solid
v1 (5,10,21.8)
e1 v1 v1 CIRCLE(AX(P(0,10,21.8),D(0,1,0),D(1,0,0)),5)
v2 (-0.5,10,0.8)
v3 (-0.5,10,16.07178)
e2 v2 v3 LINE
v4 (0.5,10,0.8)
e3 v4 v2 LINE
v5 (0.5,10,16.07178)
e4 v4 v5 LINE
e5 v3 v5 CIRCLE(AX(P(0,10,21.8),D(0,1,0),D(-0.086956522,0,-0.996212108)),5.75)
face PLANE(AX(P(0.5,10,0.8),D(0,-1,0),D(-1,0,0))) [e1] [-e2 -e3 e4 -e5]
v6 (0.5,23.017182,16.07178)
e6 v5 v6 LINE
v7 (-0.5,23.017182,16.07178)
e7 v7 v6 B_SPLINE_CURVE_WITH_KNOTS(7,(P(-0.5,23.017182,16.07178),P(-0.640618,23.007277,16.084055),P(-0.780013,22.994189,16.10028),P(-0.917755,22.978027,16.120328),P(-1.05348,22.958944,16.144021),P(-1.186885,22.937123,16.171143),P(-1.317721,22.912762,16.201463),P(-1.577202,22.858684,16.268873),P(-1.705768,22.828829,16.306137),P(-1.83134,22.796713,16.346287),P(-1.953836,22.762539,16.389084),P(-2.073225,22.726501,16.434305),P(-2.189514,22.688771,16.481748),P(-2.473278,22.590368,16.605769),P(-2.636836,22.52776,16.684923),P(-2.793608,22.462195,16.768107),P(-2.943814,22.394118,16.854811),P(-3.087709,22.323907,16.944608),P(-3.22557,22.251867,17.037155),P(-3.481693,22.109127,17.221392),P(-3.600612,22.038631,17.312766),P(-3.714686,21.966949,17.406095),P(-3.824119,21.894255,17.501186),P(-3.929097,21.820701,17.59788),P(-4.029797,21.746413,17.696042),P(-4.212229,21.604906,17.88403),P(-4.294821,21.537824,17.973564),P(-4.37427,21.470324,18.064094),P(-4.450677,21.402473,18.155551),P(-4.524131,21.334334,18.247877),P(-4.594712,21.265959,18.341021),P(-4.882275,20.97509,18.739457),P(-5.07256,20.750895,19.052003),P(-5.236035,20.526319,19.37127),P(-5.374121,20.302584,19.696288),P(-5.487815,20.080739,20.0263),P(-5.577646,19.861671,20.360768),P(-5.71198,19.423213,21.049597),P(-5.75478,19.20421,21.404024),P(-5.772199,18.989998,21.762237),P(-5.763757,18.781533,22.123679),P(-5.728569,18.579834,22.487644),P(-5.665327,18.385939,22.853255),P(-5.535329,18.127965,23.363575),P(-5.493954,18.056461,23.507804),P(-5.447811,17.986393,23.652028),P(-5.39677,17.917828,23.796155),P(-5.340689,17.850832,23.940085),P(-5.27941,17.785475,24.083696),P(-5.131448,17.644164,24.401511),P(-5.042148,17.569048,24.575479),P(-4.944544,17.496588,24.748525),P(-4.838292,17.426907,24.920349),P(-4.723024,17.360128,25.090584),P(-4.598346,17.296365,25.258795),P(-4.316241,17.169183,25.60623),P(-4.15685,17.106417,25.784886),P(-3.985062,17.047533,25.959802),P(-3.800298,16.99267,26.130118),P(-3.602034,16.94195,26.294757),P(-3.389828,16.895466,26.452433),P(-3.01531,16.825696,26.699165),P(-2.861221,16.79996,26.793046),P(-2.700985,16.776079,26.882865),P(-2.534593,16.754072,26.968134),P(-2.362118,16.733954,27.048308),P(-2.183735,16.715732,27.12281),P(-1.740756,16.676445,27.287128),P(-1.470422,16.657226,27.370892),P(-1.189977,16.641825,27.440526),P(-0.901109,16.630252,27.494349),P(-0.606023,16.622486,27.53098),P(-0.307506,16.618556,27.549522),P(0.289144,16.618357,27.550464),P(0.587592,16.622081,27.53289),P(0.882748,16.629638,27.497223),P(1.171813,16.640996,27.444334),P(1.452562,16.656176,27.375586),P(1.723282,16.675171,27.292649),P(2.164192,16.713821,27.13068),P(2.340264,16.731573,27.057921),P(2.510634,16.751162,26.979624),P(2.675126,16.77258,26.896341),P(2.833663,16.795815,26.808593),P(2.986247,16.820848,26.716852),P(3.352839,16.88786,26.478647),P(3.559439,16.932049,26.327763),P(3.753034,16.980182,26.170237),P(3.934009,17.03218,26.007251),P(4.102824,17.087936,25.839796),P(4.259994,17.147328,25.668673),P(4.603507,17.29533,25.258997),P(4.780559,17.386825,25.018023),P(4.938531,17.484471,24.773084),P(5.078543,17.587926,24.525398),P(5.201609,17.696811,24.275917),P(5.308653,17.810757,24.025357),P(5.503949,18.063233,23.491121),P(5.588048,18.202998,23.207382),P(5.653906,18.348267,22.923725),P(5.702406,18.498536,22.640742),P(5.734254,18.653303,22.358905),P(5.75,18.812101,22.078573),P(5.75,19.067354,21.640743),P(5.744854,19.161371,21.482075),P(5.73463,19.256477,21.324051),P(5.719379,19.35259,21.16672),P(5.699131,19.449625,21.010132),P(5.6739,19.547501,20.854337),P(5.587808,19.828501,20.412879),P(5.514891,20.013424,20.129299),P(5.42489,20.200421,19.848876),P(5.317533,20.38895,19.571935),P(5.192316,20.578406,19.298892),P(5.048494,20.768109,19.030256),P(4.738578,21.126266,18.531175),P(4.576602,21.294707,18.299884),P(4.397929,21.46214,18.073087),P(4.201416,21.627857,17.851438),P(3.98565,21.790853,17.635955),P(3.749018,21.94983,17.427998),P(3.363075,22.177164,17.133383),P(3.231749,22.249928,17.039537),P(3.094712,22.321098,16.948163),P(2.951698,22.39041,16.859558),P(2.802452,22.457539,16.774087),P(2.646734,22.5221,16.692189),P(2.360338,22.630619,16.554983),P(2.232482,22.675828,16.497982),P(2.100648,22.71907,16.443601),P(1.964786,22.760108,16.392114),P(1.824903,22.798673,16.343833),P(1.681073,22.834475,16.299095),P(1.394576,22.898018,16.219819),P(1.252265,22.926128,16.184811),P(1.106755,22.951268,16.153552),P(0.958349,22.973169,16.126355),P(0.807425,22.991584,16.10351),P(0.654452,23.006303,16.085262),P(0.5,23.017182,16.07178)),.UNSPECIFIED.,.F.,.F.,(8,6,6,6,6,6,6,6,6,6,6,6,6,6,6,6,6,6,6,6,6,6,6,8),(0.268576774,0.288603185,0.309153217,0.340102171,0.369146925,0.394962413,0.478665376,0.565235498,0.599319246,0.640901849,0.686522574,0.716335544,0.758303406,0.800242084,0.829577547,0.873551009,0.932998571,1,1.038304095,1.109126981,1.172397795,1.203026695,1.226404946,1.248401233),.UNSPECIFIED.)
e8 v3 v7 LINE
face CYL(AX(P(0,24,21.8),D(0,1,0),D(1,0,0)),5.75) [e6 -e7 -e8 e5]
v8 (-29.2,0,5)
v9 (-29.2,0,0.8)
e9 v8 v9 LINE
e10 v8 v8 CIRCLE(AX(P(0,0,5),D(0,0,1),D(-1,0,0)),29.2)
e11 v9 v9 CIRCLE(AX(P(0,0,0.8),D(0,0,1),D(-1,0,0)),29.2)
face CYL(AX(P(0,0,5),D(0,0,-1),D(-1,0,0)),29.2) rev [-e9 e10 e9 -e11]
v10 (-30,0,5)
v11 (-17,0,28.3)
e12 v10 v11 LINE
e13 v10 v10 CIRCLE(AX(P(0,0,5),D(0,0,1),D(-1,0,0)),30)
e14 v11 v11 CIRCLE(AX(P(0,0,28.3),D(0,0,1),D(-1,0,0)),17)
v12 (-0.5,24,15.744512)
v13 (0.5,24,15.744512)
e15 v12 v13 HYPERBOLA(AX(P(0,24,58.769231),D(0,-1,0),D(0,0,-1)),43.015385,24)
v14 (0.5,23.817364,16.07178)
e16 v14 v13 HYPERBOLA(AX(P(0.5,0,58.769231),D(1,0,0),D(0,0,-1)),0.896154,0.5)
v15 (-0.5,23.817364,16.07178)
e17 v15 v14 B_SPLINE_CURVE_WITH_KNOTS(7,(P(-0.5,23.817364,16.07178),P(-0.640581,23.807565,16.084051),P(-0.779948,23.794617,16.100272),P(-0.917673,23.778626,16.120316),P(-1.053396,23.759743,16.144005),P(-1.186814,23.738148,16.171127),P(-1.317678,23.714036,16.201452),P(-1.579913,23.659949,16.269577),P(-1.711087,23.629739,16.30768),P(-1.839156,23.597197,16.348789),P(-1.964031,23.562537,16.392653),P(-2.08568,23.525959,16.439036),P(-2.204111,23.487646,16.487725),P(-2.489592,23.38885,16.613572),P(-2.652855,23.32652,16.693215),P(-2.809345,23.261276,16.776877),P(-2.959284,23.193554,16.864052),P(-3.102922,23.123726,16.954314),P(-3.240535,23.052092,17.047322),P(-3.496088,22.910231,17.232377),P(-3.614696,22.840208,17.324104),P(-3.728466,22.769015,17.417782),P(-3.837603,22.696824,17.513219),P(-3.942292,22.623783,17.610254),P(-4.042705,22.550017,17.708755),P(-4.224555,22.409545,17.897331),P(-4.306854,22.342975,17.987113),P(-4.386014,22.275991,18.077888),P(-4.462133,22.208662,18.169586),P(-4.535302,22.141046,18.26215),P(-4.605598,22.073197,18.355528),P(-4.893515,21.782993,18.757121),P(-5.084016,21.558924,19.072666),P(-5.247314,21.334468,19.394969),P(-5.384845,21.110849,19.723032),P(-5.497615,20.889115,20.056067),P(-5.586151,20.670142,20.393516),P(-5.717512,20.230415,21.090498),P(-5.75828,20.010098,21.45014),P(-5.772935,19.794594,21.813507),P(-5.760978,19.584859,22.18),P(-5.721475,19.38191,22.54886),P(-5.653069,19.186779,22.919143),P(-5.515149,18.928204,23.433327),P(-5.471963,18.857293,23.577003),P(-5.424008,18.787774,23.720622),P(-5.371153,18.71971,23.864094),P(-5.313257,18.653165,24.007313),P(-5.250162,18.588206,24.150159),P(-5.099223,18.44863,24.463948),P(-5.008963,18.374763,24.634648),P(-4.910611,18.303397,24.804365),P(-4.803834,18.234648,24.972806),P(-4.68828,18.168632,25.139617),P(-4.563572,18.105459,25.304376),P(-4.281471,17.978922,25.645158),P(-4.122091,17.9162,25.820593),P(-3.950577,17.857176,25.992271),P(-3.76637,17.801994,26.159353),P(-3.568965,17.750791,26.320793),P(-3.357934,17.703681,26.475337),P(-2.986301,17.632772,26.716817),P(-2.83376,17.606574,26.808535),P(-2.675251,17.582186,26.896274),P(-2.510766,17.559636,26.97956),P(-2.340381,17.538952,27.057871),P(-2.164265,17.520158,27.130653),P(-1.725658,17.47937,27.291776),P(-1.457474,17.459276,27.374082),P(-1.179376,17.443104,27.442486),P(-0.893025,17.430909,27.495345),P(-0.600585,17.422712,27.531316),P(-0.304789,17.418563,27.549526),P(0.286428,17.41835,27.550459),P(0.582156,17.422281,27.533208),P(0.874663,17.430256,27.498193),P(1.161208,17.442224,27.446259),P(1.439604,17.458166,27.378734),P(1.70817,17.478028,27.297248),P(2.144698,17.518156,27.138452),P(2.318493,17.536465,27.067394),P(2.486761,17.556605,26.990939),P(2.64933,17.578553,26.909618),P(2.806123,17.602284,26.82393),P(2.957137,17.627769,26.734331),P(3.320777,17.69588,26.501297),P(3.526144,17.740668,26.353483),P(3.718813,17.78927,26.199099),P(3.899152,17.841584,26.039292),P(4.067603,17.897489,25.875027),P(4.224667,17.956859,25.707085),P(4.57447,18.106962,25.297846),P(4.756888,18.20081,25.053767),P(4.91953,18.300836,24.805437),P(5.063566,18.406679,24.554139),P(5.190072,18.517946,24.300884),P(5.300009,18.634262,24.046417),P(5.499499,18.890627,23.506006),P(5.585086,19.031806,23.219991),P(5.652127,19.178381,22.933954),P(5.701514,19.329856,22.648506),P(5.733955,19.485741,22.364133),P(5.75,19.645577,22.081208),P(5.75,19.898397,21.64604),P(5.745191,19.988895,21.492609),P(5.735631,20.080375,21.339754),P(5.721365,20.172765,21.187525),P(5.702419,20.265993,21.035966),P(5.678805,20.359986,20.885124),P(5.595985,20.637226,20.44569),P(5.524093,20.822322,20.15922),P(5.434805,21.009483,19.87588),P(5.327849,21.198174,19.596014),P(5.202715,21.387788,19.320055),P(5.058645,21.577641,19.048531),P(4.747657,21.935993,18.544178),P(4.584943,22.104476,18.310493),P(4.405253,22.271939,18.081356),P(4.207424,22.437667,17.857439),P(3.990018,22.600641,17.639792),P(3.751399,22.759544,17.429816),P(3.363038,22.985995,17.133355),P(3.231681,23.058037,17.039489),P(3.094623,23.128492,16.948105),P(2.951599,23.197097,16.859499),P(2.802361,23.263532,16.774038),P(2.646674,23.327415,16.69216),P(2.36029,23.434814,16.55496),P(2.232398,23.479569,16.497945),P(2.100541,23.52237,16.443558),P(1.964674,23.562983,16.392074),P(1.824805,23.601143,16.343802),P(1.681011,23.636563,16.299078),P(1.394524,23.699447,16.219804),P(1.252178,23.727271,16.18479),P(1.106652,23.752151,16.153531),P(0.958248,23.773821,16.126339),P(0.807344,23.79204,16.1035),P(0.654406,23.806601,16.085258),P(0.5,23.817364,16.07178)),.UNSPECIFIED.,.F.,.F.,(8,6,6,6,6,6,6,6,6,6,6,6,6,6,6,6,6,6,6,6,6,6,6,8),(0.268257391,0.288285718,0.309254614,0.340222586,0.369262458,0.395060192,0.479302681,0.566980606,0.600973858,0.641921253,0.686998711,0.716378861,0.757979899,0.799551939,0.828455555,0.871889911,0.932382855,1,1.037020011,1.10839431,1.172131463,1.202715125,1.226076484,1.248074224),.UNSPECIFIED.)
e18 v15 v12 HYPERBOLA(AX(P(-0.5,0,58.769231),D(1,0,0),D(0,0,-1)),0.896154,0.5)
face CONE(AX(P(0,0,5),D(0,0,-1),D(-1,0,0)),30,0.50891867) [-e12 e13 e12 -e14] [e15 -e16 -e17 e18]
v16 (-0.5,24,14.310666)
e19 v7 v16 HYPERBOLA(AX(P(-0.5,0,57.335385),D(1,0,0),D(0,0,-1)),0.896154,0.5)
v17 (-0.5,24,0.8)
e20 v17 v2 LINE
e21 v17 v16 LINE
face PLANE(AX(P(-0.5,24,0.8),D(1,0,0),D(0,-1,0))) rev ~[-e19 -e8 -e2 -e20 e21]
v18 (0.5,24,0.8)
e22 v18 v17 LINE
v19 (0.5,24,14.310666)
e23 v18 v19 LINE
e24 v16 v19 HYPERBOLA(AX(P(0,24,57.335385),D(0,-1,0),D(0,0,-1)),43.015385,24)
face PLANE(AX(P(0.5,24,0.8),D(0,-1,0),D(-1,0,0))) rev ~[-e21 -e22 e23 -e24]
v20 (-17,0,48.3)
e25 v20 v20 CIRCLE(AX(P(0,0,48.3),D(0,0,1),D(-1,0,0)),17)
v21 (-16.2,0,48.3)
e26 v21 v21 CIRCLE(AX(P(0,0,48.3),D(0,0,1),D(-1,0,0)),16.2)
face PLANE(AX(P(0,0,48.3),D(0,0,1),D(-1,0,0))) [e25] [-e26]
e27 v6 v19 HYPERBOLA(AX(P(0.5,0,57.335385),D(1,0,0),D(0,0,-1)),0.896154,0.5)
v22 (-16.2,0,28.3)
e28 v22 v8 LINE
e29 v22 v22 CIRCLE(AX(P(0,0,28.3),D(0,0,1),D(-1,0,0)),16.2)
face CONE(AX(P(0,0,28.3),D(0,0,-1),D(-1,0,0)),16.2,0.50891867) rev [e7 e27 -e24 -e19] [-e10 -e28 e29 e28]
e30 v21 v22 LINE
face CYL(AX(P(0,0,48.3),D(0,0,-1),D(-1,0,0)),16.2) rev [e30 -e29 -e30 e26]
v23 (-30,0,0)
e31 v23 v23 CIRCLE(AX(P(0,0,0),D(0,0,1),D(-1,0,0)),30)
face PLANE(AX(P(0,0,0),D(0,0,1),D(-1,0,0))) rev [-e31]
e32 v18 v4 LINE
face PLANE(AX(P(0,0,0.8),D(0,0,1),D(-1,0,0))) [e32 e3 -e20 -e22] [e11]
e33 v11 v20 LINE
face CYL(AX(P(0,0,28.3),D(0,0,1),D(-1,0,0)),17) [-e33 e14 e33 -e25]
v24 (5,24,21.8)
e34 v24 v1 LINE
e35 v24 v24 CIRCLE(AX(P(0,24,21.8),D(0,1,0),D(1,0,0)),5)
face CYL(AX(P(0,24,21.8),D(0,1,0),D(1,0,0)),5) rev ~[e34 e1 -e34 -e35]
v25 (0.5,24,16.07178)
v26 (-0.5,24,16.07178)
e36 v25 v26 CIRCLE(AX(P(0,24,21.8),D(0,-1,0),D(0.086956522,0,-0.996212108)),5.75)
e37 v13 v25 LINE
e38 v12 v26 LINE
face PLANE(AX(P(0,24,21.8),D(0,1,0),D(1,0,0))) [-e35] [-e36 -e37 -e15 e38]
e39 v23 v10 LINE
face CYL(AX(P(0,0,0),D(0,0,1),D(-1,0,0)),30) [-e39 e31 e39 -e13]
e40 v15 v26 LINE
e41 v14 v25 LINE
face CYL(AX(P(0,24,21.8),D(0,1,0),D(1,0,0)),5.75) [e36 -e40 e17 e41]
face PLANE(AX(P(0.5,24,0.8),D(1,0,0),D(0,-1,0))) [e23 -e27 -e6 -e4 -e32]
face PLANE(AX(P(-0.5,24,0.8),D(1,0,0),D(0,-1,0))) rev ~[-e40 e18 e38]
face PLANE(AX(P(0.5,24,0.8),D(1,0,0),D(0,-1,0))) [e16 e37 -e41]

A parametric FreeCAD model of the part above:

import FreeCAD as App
import Part
import Sketcher


def add_polygon(sketch, points):
    """Adds a closed chain of lines whose ends are joined by coincident constraints."""
    first, n = sketch.GeometryCount, len(points)
    for a, b in zip(points, points[1:] + points[:1]):
        sketch.addGeometry(Part.LineSegment(App.Vector(*a, 0), App.Vector(*b, 0)), False)
    for i in range(n):
        sketch.addConstraint(Sketcher.Constraint("Coincident", first + i, 2, first + (i + 1) % n, 1))

doc = App.newDocument("Part")
body = doc.addObject("PartDesign::Body", "Body")

# Sketch on XZ plane
sketch1 = doc.addObject("Sketcher::SketchObject", "Sketch")
body.addObject(sketch1)
sketch1.AttachmentSupport = (doc.XZ_Plane, [""])
sketch1.MapMode = "FlatFace"
add_polygon(sketch1, [(-30, 0), (0, 0), (0, 0.8), (-29.2, 0.8), (-29.2, 5), (-16.2, 28.3), (-16.2, 48.3), (-17, 48.3), (-17, 28.3), (-30, 5)])  # lines 0-9
sketch1.addConstraint([
    Sketcher.Constraint("Horizontal", 0),
    Sketcher.Constraint("Vertical", 1),
    Sketcher.Constraint("Horizontal", 2),
    Sketcher.Constraint("Vertical", 3),
    Sketcher.Constraint("Vertical", 5),
    Sketcher.Constraint("Horizontal", 6),
    Sketcher.Constraint("Vertical", 7),
    Sketcher.Constraint("Vertical", 9),
    Sketcher.Constraint("Coincident", 0, 2, -1, 1),
    Sketcher.Constraint("Parallel", 4, 8),
    Sketcher.Constraint("Horizontal", 4, 2, 7, 2),
    Sketcher.Constraint("Horizontal", 3, 2, 8, 2),
    Sketcher.Constraint("Equal", 6, 1),
    Sketcher.Constraint("DistanceX", 0, 1, 0, 2, 30.0),
    Sketcher.Constraint("DistanceY", 5, 1, 5, 2, 20.0),
    Sketcher.Constraint("DistanceY", 9, 2, 9, 1, 5.0),
    Sketcher.Constraint("DistanceX", 2, 2, 2, 1, 29.2),
    Sketcher.Constraint("DistanceX", 6, 2, -1, 1, 17.0),
    Sketcher.Constraint("DistanceY", -1, 1, 4, 2, 28.3),
])
revolution = doc.addObject("PartDesign::Revolution", "Revolution")
body.addObject(revolution)
revolution.Profile = sketch1
revolution.ReferenceAxis = (sketch1, ["V_Axis"])
revolution.Angle = 360

# Sketch on XY plane
sketch2 = doc.addObject("Sketcher::SketchObject", "Sketch001")
body.addObject(sketch2)
sketch2.AttachmentSupport = (doc.XY_Plane, [""])
sketch2.MapMode = "FlatFace"
sketch2.AttachmentOffset = App.Placement(App.Vector(0, 0, 0.8), App.Rotation())
add_polygon(sketch2, [(0.5, 10), (0.5, 24), (-0.5, 24), (-0.5, 10)])  # lines 0-3
sketch2.addConstraint([
    Sketcher.Constraint("Vertical", 0),
    Sketcher.Constraint("Horizontal", 1),
    Sketcher.Constraint("Vertical", 2),
    Sketcher.Constraint("Horizontal", 3),
    Sketcher.Constraint("DistanceX", 1, 2, 1, 1, 1.0),
    Sketcher.Constraint("DistanceY", 0, 1, 0, 2, 14.0),
    Sketcher.Constraint("DistanceY", -1, 1, 0, 2, 24.0),
    Sketcher.Constraint("DistanceX", -1, 1, 0, 2, 0.5),
])
pad1 = doc.addObject("PartDesign::Pad", "Pad")
body.addObject(pad1)
pad1.Profile = sketch2
pad1.Length = 21

# Sketch on XZ plane
sketch3 = doc.addObject("Sketcher::SketchObject", "Sketch002")
body.addObject(sketch3)
sketch3.AttachmentSupport = (doc.XZ_Plane, [""])
sketch3.MapMode = "FlatFace"
sketch3.AttachmentOffset = App.Placement(App.Vector(0, 0, -24), App.Rotation())
sketch3.addGeometry(Part.Circle(App.Vector(0, 22, 0), App.Vector(0, 0, 1), 6), False)
sketch3.addConstraint([
    Sketcher.Constraint("PointOnObject", 0, 3, -2),
    Sketcher.Constraint("Diameter", 0, 11.5),
    Sketcher.Constraint("DistanceY", -1, 1, 0, 3, 21.8),
])
pad2 = doc.addObject("PartDesign::Pad", "Pad001")
body.addObject(pad2)
pad2.Profile = sketch3
pad2.Length = 14

# Sketch on XZ plane
sketch4 = doc.addObject("Sketcher::SketchObject", "Sketch003")
body.addObject(sketch4)
sketch4.AttachmentSupport = (doc.XZ_Plane, [""])
sketch4.MapMode = "FlatFace"
sketch4.AttachmentOffset = App.Placement(App.Vector(0, 0, -24), App.Rotation())
sketch4.addGeometry(Part.Circle(App.Vector(0, 22, 0), App.Vector(0, 0, 1), 5), False)
sketch4.addConstraint([
    Sketcher.Constraint("PointOnObject", 0, 3, -2),
    Sketcher.Constraint("Diameter", 0, 10.0),
    Sketcher.Constraint("DistanceY", -1, 1, 0, 3, 21.8),
])
pocket1 = doc.addObject("PartDesign::Pocket", "Pocket")
body.addObject(pocket1)
pocket1.Profile = sketch4
pocket1.Length = 14
pocket1.Reversed = True

doc.recompute()
